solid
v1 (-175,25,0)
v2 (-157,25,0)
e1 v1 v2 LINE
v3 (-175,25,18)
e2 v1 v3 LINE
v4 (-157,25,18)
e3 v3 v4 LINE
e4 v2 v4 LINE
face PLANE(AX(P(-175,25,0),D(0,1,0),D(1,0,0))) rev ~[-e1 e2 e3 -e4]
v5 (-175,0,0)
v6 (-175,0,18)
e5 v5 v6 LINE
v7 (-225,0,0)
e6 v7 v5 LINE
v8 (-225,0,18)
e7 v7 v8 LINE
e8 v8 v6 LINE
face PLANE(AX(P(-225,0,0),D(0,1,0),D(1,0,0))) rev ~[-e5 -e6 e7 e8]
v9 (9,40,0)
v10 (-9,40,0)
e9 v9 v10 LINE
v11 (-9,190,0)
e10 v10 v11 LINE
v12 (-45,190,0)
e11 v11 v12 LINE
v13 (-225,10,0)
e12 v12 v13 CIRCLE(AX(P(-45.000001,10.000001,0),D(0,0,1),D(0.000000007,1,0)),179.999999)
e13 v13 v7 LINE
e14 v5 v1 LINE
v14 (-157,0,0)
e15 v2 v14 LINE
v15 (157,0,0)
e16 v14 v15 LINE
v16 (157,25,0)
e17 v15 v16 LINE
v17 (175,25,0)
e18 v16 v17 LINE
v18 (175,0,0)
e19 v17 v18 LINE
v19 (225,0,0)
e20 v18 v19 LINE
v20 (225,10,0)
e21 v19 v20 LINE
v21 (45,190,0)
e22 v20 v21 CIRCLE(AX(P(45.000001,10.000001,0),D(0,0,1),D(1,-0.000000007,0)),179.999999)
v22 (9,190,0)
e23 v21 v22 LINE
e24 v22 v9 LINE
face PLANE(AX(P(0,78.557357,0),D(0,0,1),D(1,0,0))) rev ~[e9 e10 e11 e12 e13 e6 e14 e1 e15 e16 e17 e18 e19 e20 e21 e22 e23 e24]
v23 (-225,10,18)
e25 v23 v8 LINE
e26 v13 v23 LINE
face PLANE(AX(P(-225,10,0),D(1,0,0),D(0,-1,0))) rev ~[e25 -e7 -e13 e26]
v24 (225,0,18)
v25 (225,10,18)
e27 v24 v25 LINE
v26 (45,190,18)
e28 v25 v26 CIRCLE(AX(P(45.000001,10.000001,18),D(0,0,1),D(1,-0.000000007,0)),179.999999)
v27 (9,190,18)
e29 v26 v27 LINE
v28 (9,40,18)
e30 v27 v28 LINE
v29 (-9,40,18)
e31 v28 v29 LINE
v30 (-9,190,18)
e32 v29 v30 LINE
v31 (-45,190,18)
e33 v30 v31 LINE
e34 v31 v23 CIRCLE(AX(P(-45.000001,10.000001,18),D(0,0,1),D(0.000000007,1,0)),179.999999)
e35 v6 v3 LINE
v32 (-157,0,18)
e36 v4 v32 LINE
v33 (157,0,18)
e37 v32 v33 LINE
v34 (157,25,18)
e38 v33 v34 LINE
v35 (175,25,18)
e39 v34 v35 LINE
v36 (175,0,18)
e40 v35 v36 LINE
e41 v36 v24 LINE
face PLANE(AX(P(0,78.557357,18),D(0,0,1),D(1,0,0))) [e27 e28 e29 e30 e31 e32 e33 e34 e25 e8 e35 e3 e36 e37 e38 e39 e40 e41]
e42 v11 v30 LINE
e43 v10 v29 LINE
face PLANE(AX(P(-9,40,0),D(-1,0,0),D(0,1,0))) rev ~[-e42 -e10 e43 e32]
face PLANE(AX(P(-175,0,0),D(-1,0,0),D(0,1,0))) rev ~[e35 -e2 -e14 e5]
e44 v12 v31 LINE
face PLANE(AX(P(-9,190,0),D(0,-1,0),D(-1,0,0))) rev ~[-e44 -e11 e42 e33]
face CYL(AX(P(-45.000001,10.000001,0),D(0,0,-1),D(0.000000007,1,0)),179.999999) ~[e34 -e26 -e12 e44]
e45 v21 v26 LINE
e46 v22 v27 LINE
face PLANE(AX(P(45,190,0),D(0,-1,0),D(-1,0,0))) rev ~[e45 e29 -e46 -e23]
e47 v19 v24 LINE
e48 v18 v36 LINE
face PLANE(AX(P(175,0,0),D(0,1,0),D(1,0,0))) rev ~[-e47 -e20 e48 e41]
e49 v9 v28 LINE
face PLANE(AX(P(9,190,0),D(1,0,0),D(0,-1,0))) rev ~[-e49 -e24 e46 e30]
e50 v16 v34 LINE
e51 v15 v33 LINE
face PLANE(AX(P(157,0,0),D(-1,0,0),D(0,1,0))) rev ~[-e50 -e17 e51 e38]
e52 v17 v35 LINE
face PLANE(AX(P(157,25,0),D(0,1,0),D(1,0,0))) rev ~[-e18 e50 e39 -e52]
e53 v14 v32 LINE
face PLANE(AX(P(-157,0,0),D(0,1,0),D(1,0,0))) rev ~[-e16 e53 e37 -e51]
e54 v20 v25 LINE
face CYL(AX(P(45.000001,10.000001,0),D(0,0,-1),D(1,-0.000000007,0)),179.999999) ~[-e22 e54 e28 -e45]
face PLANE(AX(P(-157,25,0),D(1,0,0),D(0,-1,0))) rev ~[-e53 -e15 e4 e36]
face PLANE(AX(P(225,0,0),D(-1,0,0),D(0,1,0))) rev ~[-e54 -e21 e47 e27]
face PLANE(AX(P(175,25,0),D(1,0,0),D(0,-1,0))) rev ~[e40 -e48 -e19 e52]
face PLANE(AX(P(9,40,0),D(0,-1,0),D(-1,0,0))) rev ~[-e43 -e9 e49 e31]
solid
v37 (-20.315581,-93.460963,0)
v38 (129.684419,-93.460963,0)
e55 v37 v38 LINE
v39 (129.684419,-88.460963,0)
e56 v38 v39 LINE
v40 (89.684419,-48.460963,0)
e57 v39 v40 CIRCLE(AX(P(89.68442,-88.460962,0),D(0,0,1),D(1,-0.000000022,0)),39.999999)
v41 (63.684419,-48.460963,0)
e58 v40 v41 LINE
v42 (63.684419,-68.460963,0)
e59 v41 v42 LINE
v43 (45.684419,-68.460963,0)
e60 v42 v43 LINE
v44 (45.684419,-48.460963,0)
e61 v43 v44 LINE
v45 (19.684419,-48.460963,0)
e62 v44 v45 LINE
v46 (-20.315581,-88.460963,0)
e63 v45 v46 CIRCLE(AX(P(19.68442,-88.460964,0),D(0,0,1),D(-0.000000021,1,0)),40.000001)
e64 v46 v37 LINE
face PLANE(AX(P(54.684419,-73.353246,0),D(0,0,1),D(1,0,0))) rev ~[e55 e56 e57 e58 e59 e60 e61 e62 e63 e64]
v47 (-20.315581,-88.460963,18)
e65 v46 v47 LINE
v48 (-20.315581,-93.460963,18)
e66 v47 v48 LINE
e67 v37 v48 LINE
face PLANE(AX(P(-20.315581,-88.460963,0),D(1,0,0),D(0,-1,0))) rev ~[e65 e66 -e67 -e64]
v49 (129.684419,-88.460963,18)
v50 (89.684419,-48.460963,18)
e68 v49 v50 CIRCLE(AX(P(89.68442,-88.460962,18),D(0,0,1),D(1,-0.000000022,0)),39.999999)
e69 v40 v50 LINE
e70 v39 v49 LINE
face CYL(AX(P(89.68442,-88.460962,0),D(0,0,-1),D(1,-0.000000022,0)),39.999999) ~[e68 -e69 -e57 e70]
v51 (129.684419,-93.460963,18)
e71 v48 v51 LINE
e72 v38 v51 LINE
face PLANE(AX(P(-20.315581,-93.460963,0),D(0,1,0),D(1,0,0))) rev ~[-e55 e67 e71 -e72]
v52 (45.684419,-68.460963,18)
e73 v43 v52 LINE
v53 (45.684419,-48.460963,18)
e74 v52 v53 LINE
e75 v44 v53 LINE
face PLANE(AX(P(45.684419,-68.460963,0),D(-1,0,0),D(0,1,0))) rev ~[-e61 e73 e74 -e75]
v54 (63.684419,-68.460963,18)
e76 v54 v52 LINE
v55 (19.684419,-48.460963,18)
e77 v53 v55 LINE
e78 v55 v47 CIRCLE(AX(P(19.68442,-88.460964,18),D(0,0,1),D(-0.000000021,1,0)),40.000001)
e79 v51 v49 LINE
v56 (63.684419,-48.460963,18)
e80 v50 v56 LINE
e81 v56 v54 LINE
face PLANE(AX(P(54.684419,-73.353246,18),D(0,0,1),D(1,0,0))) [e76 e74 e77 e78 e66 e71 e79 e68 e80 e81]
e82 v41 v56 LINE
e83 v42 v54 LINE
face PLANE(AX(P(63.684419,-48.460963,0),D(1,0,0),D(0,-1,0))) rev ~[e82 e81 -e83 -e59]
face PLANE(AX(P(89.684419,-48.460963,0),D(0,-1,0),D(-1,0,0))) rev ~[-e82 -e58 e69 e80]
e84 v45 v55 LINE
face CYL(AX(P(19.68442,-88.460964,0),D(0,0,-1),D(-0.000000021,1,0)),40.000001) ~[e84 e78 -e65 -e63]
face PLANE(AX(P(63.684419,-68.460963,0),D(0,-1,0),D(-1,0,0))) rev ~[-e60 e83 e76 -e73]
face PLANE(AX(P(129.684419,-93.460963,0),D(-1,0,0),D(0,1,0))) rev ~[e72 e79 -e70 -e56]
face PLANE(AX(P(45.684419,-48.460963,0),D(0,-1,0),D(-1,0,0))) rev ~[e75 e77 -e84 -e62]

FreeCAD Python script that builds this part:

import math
import FreeCAD as App
import Part
import Sketcher
from FreeCAD import Vector

doc = App.newDocument("Part")
body = doc.addObject("PartDesign::Body", "Body")

# Sketch on XY plane
sketch1 = doc.addObject("Sketcher::SketchObject", "Sketch")
body.addObject(sketch1)
sketch1.AttachmentSupport = (doc.XY_Plane, [""])
sketch1.MapMode = "FlatFace"
sketch1.addGeometry([
    Part.LineSegment(Vector(-225, 10, 0), Vector(-225, 0, 0)),  # 0
    Part.LineSegment(Vector(-225, 0, 0), Vector(-175, 0, 0)),  # 1
    Part.LineSegment(Vector(-175, 0, 0), Vector(-175, 25, 0)),  # 2
    Part.LineSegment(Vector(-175, 25, 0), Vector(-157, 25, 0)),  # 3
    Part.LineSegment(Vector(-157, 25, 0), Vector(-157, 0, 0)),  # 4
    Part.LineSegment(Vector(-157, 0, 0), Vector(157, 0, 0)),  # 5
    Part.LineSegment(Vector(157, 0, 0), Vector(157, 25, 0)),  # 6
    Part.LineSegment(Vector(157, 25, 0), Vector(175, 25, 0)),  # 7
    Part.LineSegment(Vector(175, 25, 0), Vector(175, 0, 0)),  # 8
    Part.LineSegment(Vector(175, 0, 0), Vector(225, 0, 0)),  # 9
    Part.LineSegment(Vector(225, 0, 0), Vector(225, 10, 0)),  # 10
    Part.ArcOfCircle(Part.Circle(Vector(45.000001, 10.000001, 0), Vector(0, 0, 1), 179.999999), math.radians(0), math.radians(90)),  # 11
    Part.LineSegment(Vector(45, 190, 0), Vector(9, 190, 0)),  # 12
    Part.LineSegment(Vector(9, 190, 0), Vector(9, 40, 0)),  # 13
    Part.LineSegment(Vector(9, 40, 0), Vector(-9, 40, 0)),  # 14
    Part.LineSegment(Vector(-9, 40, 0), Vector(-9, 190, 0)),  # 15
    Part.LineSegment(Vector(-9, 190, 0), Vector(-45, 190, 0)),  # 16
    Part.ArcOfCircle(Part.Circle(Vector(-45.000001, 10.000001, 0), Vector(0, 0, 1), 179.999999), math.radians(90), math.radians(180)),  # 17
], False)
sketch1.addConstraint([
    Sketcher.Constraint("Coincident", 0, 2, 1, 1),
    Sketcher.Constraint("Coincident", 1, 2, 2, 1),
    Sketcher.Constraint("Coincident", 2, 2, 3, 1),
    Sketcher.Constraint("Coincident", 3, 2, 4, 1),
    Sketcher.Constraint("Coincident", 4, 2, 5, 1),
    Sketcher.Constraint("Coincident", 5, 2, 6, 1),
    Sketcher.Constraint("Coincident", 6, 2, 7, 1),
    Sketcher.Constraint("Coincident", 7, 2, 8, 1),
    Sketcher.Constraint("Coincident", 8, 2, 9, 1),
    Sketcher.Constraint("Coincident", 9, 2, 10, 1),
    Sketcher.Constraint("Tangent", 10, 2, 11, 1),
    Sketcher.Constraint("Tangent", 11, 2, 12, 1),
    Sketcher.Constraint("Coincident", 12, 2, 13, 1),
    Sketcher.Constraint("Coincident", 13, 2, 14, 1),
    Sketcher.Constraint("Coincident", 14, 2, 15, 1),
    Sketcher.Constraint("Coincident", 15, 2, 16, 1),
    Sketcher.Constraint("Tangent", 16, 2, 17, 1),
    Sketcher.Constraint("Tangent", 17, 2, 0, 1),
    Sketcher.Constraint("Vertical", 0),
    Sketcher.Constraint("Horizontal", 1),
    Sketcher.Constraint("Vertical", 2),
    Sketcher.Constraint("Horizontal", 3),
    Sketcher.Constraint("Vertical", 4),
    Sketcher.Constraint("Horizontal", 5),
    Sketcher.Constraint("Vertical", 6),
    Sketcher.Constraint("Horizontal", 7),
    Sketcher.Constraint("Vertical", 8),
    Sketcher.Constraint("Horizontal", 9),
    Sketcher.Constraint("Vertical", 10),
    Sketcher.Constraint("Horizontal", 12),
    Sketcher.Constraint("Vertical", 13),
    Sketcher.Constraint("Horizontal", 14),
    Sketcher.Constraint("Vertical", 15),
    Sketcher.Constraint("Horizontal", 16),
    Sketcher.Constraint("Equal", 11, 17),
    Sketcher.Constraint("Symmetric", 4, 2, 5, 2, -1, 1),
    Sketcher.Constraint("Symmetric", 1, 2, 8, 2, -1, 1),
    Sketcher.Constraint("Symmetric", 11, 3, 17, 3, -2),
    Sketcher.Constraint("PointOnObject", 0, 2, -1),
    Sketcher.Constraint("Horizontal", 3, 2, 6, 2),
    Sketcher.Constraint("Equal", 7, 14),
    Sketcher.Constraint("Equal", 12, 16),
    Sketcher.Constraint("Radius", 11, 179.999999),
    Sketcher.Constraint("DistanceX", 1, 1, 1, 2, 50.0),
    Sketcher.Constraint("DistanceX", 3, 1, 3, 2, 18.0),
    Sketcher.Constraint("DistanceX", 5, 1, 5, 2, 314.0),
    Sketcher.Constraint("DistanceY", 0, 2, 0, 1, 10.0),
    Sketcher.Constraint("DistanceY", 2, 1, 2, 2, 25.0),
    Sketcher.Constraint("DistanceY", 13, 2, 13, 1, 150.0),
])
pad1 = doc.addObject("PartDesign::Pad", "Pad")
body.addObject(pad1)
pad1.Profile = sketch1
pad1.Length = 18
body2 = doc.addObject("PartDesign::Body", "Body001")

# Sketch on XY plane
sketch2 = doc.addObject("Sketcher::SketchObject", "Sketch001")
body2.addObject(sketch2)
sketch2.AttachmentSupport = (doc.getObject("XY_Plane001"), [""])
sketch2.MapMode = "FlatFace"
sketch2.addGeometry([
    Part.LineSegment(Vector(-20.315581, -93.460963, 0), Vector(129.684419, -93.460963, 0)),  # 0
    Part.LineSegment(Vector(129.684419, -93.460963, 0), Vector(129.684419, -88.460963, 0)),  # 1
    Part.ArcOfCircle(Part.Circle(Vector(89.68442, -88.460962, 0), Vector(0, 0, 1), 39.999999), math.radians(-0.000001), math.radians(90.000001)),  # 2
    Part.LineSegment(Vector(89.684419, -48.460963, 0), Vector(63.684419, -48.460963, 0)),  # 3
    Part.LineSegment(Vector(63.684419, -48.460963, 0), Vector(63.684419, -68.460963, 0)),  # 4
    Part.LineSegment(Vector(63.684419, -68.460963, 0), Vector(45.684419, -68.460963, 0)),  # 5
    Part.LineSegment(Vector(45.684419, -68.460963, 0), Vector(45.684419, -48.460963, 0)),  # 6
    Part.LineSegment(Vector(45.684419, -48.460963, 0), Vector(19.684419, -48.460963, 0)),  # 7
    Part.ArcOfCircle(Part.Circle(Vector(19.68442, -88.460964, 0), Vector(0, 0, 1), 40.000001), math.radians(90.000001), math.radians(179.999999)),  # 8
    Part.LineSegment(Vector(-20.315581, -88.460963, 0), Vector(-20.315581, -93.460963, 0)),  # 9
], False)
sketch2.addConstraint([
    Sketcher.Constraint("Coincident", 0, 2, 1, 1),
    Sketcher.Constraint("Tangent", 1, 2, 2, 1),
    Sketcher.Constraint("Tangent", 2, 2, 3, 1),
    Sketcher.Constraint("Coincident", 3, 2, 4, 1),
    Sketcher.Constraint("Coincident", 4, 2, 5, 1),
    Sketcher.Constraint("Coincident", 5, 2, 6, 1),
    Sketcher.Constraint("Coincident", 6, 2, 7, 1),
    Sketcher.Constraint("Tangent", 7, 2, 8, 1),
    Sketcher.Constraint("Tangent", 8, 2, 9, 1),
    Sketcher.Constraint("Coincident", 9, 2, 0, 1),
    Sketcher.Constraint("Horizontal", 0),
    Sketcher.Constraint("Vertical", 1),
    Sketcher.Constraint("Horizontal", 3),
    Sketcher.Constraint("Vertical", 4),
    Sketcher.Constraint("Horizontal", 5),
    Sketcher.Constraint("Vertical", 6),
    Sketcher.Constraint("Horizontal", 7),
    Sketcher.Constraint("Vertical", 9),
    Sketcher.Constraint("Equal", 2, 8),
    Sketcher.Constraint("Horizontal", 2, 3, 8, 3),
    Sketcher.Constraint("Equal", 3, 7),
    Sketcher.Constraint("Radius", 2, 39.999999),
    Sketcher.Constraint("DistanceX", 0, 1, 0, 2, 150.0),
    Sketcher.Constraint("DistanceX", 3, 2, 3, 1, 26.0),
    Sketcher.Constraint("DistanceY", 1, 1, 1, 2, 5.0),
    Sketcher.Constraint("DistanceY", 4, 2, 4, 1, 20.0),
    Sketcher.Constraint("DistanceX", -1, 1, 2, 3, 89.68442),
    Sketcher.Constraint("DistanceY", 2, 3, -1, 1, 88.460962),
])
pad2 = doc.addObject("PartDesign::Pad", "Pad001")
body2.addObject(pad2)
pad2.Profile = sketch2
pad2.Length = 18

doc.recompute()
